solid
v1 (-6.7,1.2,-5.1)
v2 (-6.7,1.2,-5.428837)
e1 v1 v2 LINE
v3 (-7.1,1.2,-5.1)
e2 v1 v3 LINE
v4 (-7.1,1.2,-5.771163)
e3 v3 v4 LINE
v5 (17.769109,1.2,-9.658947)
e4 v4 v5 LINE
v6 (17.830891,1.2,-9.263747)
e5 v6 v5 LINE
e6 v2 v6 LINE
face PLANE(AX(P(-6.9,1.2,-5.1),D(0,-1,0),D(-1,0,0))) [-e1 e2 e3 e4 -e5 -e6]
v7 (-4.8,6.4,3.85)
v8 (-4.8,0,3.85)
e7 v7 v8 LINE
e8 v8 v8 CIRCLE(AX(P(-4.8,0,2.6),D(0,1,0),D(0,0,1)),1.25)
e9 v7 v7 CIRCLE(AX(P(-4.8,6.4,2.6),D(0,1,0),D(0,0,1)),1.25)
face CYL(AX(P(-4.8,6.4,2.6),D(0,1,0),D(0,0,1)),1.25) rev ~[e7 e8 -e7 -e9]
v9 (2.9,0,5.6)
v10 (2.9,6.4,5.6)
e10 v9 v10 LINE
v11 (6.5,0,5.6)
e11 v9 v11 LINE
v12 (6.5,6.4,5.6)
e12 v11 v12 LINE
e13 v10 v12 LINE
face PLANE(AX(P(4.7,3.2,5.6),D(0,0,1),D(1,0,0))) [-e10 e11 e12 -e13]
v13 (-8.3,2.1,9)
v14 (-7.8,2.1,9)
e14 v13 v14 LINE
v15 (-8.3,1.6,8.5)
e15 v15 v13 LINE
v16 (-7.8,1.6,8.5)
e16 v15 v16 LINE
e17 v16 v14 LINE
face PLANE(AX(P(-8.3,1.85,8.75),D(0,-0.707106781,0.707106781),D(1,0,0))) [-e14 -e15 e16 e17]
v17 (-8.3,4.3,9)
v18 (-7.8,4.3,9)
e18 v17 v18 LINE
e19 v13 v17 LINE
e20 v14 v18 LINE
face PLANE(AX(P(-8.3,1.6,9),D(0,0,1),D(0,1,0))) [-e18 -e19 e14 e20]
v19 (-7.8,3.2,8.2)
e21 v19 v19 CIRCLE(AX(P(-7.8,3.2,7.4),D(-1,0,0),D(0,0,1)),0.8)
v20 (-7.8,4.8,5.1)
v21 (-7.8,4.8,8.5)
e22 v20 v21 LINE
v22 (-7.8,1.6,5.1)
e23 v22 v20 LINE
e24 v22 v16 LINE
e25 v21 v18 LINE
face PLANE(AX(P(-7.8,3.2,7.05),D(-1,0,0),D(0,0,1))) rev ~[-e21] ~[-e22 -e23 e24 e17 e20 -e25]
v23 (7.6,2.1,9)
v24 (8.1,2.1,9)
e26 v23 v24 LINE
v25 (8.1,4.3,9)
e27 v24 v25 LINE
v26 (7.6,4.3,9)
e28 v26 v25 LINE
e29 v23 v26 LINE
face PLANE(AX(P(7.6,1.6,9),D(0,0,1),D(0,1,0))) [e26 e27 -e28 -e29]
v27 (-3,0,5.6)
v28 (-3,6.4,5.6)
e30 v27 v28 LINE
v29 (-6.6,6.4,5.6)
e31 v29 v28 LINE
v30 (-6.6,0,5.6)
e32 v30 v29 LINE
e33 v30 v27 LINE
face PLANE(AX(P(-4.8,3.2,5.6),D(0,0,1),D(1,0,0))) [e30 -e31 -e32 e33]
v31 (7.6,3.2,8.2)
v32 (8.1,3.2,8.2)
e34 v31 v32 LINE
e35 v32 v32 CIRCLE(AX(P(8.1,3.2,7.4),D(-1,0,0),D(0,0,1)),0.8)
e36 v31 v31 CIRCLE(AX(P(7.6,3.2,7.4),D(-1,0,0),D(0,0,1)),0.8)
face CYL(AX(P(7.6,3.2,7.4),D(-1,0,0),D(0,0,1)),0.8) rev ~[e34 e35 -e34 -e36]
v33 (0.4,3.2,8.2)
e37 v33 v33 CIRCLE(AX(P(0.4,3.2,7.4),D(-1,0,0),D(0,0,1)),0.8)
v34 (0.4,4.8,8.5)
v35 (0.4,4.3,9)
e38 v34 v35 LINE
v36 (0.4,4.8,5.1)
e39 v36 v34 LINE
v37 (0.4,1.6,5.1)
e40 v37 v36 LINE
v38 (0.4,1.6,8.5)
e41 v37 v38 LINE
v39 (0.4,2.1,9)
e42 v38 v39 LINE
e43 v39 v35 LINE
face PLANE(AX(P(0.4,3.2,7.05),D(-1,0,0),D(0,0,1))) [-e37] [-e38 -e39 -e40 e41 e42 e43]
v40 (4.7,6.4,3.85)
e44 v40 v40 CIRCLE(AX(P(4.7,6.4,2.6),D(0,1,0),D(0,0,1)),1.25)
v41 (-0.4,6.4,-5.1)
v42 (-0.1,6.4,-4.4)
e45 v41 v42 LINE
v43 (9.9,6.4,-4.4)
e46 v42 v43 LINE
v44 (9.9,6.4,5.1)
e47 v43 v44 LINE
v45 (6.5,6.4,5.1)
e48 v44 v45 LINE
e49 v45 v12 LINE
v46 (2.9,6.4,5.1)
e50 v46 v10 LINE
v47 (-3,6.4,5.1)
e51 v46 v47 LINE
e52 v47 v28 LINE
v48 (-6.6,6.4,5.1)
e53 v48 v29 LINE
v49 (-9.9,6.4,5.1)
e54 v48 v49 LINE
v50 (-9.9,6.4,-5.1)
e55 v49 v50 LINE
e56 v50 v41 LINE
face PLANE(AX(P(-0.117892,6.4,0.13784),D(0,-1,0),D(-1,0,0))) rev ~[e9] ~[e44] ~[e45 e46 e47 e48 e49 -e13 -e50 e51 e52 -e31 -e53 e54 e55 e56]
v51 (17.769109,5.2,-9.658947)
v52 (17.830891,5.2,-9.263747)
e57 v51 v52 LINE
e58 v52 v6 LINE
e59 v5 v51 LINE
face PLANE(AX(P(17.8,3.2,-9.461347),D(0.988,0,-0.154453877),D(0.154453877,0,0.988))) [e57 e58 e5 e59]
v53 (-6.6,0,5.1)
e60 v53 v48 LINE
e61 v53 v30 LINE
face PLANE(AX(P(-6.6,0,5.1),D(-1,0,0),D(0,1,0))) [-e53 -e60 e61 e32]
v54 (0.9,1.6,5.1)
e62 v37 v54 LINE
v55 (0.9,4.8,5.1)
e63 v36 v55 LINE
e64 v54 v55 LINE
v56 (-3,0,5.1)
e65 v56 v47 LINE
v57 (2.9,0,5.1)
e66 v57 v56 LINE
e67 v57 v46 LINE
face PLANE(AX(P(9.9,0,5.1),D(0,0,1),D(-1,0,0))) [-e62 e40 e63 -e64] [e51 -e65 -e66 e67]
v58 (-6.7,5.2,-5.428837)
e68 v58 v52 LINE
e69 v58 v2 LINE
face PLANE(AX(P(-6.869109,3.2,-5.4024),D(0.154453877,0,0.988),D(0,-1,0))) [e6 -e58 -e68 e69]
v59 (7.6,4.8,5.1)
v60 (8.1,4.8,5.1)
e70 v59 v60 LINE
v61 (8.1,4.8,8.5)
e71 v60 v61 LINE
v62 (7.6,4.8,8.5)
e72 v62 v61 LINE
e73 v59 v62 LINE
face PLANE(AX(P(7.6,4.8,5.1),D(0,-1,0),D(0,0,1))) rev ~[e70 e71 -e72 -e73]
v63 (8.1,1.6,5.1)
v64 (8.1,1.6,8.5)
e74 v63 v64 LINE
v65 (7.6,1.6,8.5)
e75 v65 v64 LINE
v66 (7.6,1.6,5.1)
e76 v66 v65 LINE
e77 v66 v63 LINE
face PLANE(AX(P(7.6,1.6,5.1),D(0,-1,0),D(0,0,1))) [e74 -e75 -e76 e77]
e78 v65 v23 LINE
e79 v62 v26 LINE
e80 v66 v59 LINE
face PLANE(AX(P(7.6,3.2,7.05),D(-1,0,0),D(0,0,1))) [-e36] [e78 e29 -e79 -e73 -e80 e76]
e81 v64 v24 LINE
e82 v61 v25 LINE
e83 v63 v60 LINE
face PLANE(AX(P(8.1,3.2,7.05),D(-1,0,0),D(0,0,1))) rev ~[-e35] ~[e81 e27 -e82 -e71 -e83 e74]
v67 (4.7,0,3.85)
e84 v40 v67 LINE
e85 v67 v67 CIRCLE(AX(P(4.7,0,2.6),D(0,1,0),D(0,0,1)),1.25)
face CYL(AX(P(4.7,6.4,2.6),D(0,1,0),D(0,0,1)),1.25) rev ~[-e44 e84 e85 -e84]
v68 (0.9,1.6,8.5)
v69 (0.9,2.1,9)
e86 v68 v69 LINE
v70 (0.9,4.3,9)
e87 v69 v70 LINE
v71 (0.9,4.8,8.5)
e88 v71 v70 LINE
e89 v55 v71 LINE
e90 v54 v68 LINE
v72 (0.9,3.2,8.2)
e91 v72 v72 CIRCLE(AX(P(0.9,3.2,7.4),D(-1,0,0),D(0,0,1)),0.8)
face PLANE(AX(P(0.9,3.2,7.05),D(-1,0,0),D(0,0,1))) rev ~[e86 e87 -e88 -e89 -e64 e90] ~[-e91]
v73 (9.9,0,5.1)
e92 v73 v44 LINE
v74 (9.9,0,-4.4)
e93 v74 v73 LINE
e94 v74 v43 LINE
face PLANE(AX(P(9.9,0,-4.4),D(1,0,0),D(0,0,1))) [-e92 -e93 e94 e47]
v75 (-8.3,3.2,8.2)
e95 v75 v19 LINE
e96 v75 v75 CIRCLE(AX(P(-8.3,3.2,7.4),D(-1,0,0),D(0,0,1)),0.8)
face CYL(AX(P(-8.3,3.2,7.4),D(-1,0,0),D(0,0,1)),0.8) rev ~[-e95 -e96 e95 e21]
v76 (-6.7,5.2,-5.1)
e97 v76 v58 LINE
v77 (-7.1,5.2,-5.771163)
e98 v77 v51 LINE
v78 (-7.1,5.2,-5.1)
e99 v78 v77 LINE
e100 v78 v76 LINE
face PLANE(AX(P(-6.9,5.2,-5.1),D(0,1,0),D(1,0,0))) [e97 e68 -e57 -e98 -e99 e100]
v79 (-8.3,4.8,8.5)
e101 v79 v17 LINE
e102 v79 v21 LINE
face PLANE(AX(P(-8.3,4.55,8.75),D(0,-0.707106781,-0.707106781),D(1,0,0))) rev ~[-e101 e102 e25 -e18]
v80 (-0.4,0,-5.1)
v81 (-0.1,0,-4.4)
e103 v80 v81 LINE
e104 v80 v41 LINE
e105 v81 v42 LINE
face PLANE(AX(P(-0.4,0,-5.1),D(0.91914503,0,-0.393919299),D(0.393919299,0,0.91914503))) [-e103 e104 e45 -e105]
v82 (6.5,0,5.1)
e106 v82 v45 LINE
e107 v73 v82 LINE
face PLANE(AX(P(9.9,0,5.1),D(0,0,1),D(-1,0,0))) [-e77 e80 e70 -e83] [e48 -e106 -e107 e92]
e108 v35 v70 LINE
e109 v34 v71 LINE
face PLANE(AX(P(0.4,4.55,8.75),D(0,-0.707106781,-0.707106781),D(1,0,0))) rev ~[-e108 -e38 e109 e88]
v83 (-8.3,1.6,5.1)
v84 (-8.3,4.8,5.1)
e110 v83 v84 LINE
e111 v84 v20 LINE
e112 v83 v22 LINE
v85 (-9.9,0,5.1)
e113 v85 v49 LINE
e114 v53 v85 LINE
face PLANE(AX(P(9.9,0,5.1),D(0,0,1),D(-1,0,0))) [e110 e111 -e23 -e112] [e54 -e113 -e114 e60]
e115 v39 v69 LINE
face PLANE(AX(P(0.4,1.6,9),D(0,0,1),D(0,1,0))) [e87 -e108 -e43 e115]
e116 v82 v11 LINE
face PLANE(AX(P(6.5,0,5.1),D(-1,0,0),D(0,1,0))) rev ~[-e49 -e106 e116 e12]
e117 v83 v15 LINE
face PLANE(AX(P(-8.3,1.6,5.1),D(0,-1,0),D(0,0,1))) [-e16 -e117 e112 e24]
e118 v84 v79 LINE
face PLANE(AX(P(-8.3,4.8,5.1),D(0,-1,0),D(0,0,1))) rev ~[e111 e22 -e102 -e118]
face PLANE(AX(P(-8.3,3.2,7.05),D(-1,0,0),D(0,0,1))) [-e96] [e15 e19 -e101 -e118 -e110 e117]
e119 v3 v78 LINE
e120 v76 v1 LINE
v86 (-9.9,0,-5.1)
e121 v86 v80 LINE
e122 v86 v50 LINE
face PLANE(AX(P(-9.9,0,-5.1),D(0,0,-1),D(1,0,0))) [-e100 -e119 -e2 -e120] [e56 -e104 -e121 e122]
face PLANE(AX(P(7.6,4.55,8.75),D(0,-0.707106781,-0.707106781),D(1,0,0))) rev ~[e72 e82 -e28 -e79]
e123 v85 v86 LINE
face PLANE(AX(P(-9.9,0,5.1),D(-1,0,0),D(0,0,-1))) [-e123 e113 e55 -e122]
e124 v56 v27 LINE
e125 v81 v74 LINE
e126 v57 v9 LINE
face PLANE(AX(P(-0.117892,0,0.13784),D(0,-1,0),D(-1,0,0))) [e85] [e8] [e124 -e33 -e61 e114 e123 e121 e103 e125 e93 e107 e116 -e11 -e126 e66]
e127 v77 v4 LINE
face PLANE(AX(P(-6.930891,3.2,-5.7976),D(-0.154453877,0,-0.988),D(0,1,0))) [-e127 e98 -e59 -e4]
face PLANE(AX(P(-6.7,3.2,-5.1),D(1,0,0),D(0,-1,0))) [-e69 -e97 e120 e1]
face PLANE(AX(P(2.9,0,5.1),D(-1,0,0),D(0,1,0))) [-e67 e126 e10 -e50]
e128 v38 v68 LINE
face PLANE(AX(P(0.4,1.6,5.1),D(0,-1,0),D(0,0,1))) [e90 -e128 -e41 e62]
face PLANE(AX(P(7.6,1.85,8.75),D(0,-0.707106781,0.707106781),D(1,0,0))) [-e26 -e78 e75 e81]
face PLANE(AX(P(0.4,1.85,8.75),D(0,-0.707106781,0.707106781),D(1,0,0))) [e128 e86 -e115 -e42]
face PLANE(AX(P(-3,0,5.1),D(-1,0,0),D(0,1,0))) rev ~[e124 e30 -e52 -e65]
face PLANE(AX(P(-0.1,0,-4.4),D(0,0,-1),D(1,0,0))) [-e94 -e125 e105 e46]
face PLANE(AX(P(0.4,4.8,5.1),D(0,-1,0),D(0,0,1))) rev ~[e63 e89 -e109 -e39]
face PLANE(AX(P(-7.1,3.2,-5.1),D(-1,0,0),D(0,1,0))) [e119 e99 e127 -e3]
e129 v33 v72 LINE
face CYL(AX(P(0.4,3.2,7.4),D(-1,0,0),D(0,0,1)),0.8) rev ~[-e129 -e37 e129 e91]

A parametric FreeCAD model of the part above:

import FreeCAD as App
import Part
import Sketcher

V = App.Vector
Q = App.Units.Quantity


def edges_at(feature, points):
    """Names of the edges that pass closest to the given points."""
    edges = feature.Shape.Edges
    near = lambda p: min(range(len(edges)), key=lambda i: edges[i].distToShape(Part.Vertex(*p))[0])
    return sorted({f"Edge{near(p) + 1}" for p in points})

doc = App.newDocument("Part")
body = doc.addObject("PartDesign::Body", "Body")

# Sketch on XZ plane
sketch1 = doc.addObject("Sketcher::SketchObject", "Sketch")
body.addObject(sketch1)
sketch1.AttachmentSupport = (doc.XZ_Plane, [""])
sketch1.MapMode = "FlatFace"
sketch1.addGeometry([
    Part.LineSegment(V(-0.1, -4.4, 0), V(-0.4, -5.1, 0)),  # 0
    Part.LineSegment(V(-0.4, -5.1, 0), V(-9.9, -5.1, 0)),  # 1
    Part.LineSegment(V(-9.9, -5.1, 0), V(-9.9, 5.1, 0)),  # 2
    Part.LineSegment(V(-9.9, 5.1, 0), V(9.9, 5.1, 0)),  # 3
    Part.LineSegment(V(9.9, 5.1, 0), V(9.9, -4.4, 0)),  # 4
    Part.LineSegment(V(9.9, -4.4, 0), V(-0.1, -4.4, 0)),  # 5
], False)
sketch1.addConstraint([
    Sketcher.Constraint("Coincident", 0, 2, 1, 1),
    Sketcher.Constraint("Coincident", 1, 2, 2, 1),
    Sketcher.Constraint("Coincident", 2, 2, 3, 1),
    Sketcher.Constraint("Coincident", 3, 2, 4, 1),
    Sketcher.Constraint("Coincident", 4, 2, 5, 1),
    Sketcher.Constraint("Coincident", 5, 2, 0, 1),
    Sketcher.Constraint("Horizontal", 1),
    Sketcher.Constraint("Vertical", 2),
    Sketcher.Constraint("Horizontal", 3),
    Sketcher.Constraint("Vertical", 4),
    Sketcher.Constraint("Horizontal", 5),
    Sketcher.Constraint("Symmetric", 1, 2, 3, 2, -1, 1),
    Sketcher.Constraint("Equal", 1, 4),
    Sketcher.Constraint("DistanceX", 5, 2, 5, 1, Q("10 mm")),
    Sketcher.Constraint("DistanceX", 1, 2, 1, 1, Q("9.5 mm")),
    Sketcher.Constraint("DistanceX", 3, 1, 3, 2, Q("19.8 mm")),
    Sketcher.Constraint("DistanceY", 2, 1, 2, 2, Q("10.2 mm")),
])
pad1 = doc.addObject("PartDesign::Pad", "Pad")
body.addObject(pad1)
pad1.Profile = sketch1
pad1.Length = 6.4
pad1.Reversed = True

# Sketch on XZ plane
sketch2 = doc.addObject("Sketcher::SketchObject", "Sketch001")
body.addObject(sketch2)
sketch2.AttachmentSupport = (doc.XZ_Plane, [""])
sketch2.MapMode = "FlatFace"
sketch2.AttachmentOffset = App.Placement(V(0, 0, -6.4), App.Rotation())
sketch2.addGeometry([
    Part.Circle(V(-4.8, 2.6, 0), V(0, 0, 1), 1.2),
    Part.Circle(V(4.7, 2.6, 0), V(0, 0, 1), 1.2),
], False)
sketch2.addConstraint([
    Sketcher.Constraint("Equal", 0, 1),
    Sketcher.Constraint("Horizontal", 0, 3, 1, 3),
    Sketcher.Constraint("Diameter", 0, Q("2.5 mm")),
    Sketcher.Constraint("DistanceX", 0, 3, -1, 1, Q("4.8 mm")),
    Sketcher.Constraint("DistanceY", -1, 1, 0, 3, Q("2.6 mm")),
    Sketcher.Constraint("DistanceX", -1, 1, 1, 3, Q("4.7 mm")),
])
pocket1 = doc.addObject("PartDesign::Pocket", "Pocket")
body.addObject(pocket1)
pocket1.Profile = sketch2
pocket1.Type = "ThroughAll"
pocket1.Reversed = True

# Sketch on YZ plane
sketch3 = doc.addObject("Sketcher::SketchObject", "Sketch002")
body.addObject(sketch3)
sketch3.AttachmentSupport = (doc.YZ_Plane, [""])
sketch3.MapMode = "FlatFace"
sketch3.AttachmentOffset = App.Placement(V(0, 0, -8.3), App.Rotation())
sketch3.addGeometry([
    Part.LineSegment(V(4.8, 5.1, 0), V(1.6, 5.1, 0)),  # 0
    Part.LineSegment(V(1.6, 5.1, 0), V(1.6, 9, 0)),  # 1
    Part.LineSegment(V(1.6, 9, 0), V(4.8, 9, 0)),  # 2
    Part.LineSegment(V(4.8, 9, 0), V(4.8, 5.1, 0)),  # 3
    Part.Circle(V(3.2, 7.4, 0), V(0, 0, 1), 0.8),  # 4
], False)
sketch3.addConstraint([
    Sketcher.Constraint("Coincident", 0, 2, 1, 1),
    Sketcher.Constraint("Coincident", 1, 2, 2, 1),
    Sketcher.Constraint("Coincident", 2, 2, 3, 1),
    Sketcher.Constraint("Coincident", 3, 2, 0, 1),
    Sketcher.Constraint("Horizontal", 0),
    Sketcher.Constraint("Vertical", 1),
    Sketcher.Constraint("Horizontal", 2),
    Sketcher.Constraint("Vertical", 3),
    Sketcher.Constraint("Diameter", 4, Q("1.6 mm")),
    Sketcher.Constraint("DistanceX", 0, 2, 0, 1, Q("3.2 mm")),
    Sketcher.Constraint("DistanceY", 1, 1, 1, 2, Q("3.9 mm")),
    Sketcher.Constraint("DistanceY", -1, 1, 1, 2, Q("9 mm")),
    Sketcher.Constraint("DistanceX", -1, 1, 4, 3, Q("3.2 mm")),
    Sketcher.Constraint("DistanceY", -1, 1, 4, 3, Q("7.4 mm")),
    Sketcher.Constraint("DistanceX", -1, 1, 0, 2, Q("1.6 mm")),
])
pad2 = doc.addObject("PartDesign::Pad", "Pad001")
body.addObject(pad2)
pad2.Profile = sketch3
pad2.Length = 0.5
doc.recompute()

chamfer = doc.addObject("PartDesign::Chamfer", "Chamfer")
body.addObject(chamfer)
chamfer.Base = (pad2, edges_at(pad2, [(-8.05, 4.8, 9), (-8.05, 1.6, 9)]))
chamfer.Size = 0.5
doc.recompute()

linearpattern = doc.addObject("PartDesign::LinearPattern", "LinearPattern")
body.addObject(linearpattern)
linearpattern.Originals = [pad2]
linearpattern.Direction = (doc.X_Axis, [""])
linearpattern.Mode = "offset"
linearpattern.Offset = 8.7
linearpattern.Occurrences = 2
body.Tip = linearpattern
doc.recompute()

chamfer2 = doc.addObject("PartDesign::Chamfer", "Chamfer001")
body.addObject(chamfer2)
chamfer2.Base = (linearpattern, edges_at(linearpattern, [(0.65, 4.8, 9), (0.65, 1.6, 9)]))
chamfer2.Size = 0.5
doc.recompute()

linearpattern2 = doc.addObject("PartDesign::LinearPattern", "LinearPattern001")
body.addObject(linearpattern2)
linearpattern2.Originals = [pad2]
linearpattern2.Direction = (doc.X_Axis, [""])
linearpattern2.Mode = "offset"
linearpattern2.Offset = 15.9
linearpattern2.Occurrences = 2
body.Tip = linearpattern2
doc.recompute()

chamfer3 = doc.addObject("PartDesign::Chamfer", "Chamfer002")
body.addObject(chamfer3)
chamfer3.Base = (linearpattern2, edges_at(linearpattern2, [(7.85, 4.8, 9), (7.85, 1.6, 9)]))
chamfer3.Size = 0.5

# Sketch on XY plane
sketch4 = doc.addObject("Sketcher::SketchObject", "Sketch003")
body.addObject(sketch4)
sketch4.AttachmentSupport = (doc.XY_Plane, [""])
sketch4.MapMode = "FlatFace"
sketch4.AttachmentOffset = App.Placement(V(0, 0, -5.1), App.Rotation())
sketch4.addGeometry([
    Part.LineSegment(V(-6.7, 5.2, 0), V(-6.7, 1.2, 0)),
    Part.LineSegment(V(-6.7, 1.2, 0), V(-7.1, 1.2, 0)),
    Part.LineSegment(V(-7.1, 1.2, 0), V(-7.1, 5.2, 0)),
    Part.LineSegment(V(-7.1, 5.2, 0), V(-6.7, 5.2, 0)),
], False)
sketch4.addConstraint([
    Sketcher.Constraint("Coincident", 0, 2, 1, 1),
    Sketcher.Constraint("Coincident", 1, 2, 2, 1),
    Sketcher.Constraint("Coincident", 2, 2, 3, 1),
    Sketcher.Constraint("Coincident", 3, 2, 0, 1),
    Sketcher.Constraint("Vertical", 0),
    Sketcher.Constraint("Horizontal", 1),
    Sketcher.Constraint("Vertical", 2),
    Sketcher.Constraint("Horizontal", 3),
    Sketcher.Constraint("DistanceY", 0, 2, 0, 1, Q("4 mm")),
    Sketcher.Constraint("DistanceX", 1, 2, 1, 1, Q("0.4 mm")),
    Sketcher.Constraint("DistanceX", 0, 2, -1, 1, Q("6.7 mm")),
    Sketcher.Constraint("DistanceY", -1, 1, 0, 2, Q("1.2 mm")),
])

# Sketch on XZ plane
sketch5 = doc.addObject("Sketcher::SketchObject", "Sketch004")
body.addObject(sketch5)
sketch5.AttachmentSupport = (doc.XZ_Plane, [""])
sketch5.MapMode = "FlatFace"
sketch5.AttachmentOffset = App.Placement(V(0, 0, -3.2), App.Rotation())
sketch5.addGeometry([
    Part.LineSegment(V(-6.9, -5.1, 0), V(-6.9, -5.6, 0)),
    Part.LineSegment(V(-6.9, -5.6, 0), V(17.8, -9.5, 0)),
], False)
sketch5.addConstraint([
    Sketcher.Constraint("Coincident", 0, 2, 1, 1),
    Sketcher.Constraint("Vertical", 0),
    Sketcher.Constraint("Distance", 1, Q("25 mm")),
    Sketcher.Constraint("DistanceY", 0, 2, 0, 1, Q("0.5 mm")),
    Sketcher.Constraint("DistanceX", 0, 1, -1, 1, Q("6.9 mm")),
    Sketcher.Constraint("DistanceY", 0, 1, -1, 1, Q("5.1 mm")),
    Sketcher.Constraint("DistanceX", -1, 1, 1, 2, Q("17.8 mm")),
])
doc.recompute()

additivepipe = doc.addObject("PartDesign::AdditivePipe", "AdditivePipe")
body.addObject(additivepipe)
additivepipe.Profile = sketch4
additivepipe.Spine = (sketch5, ["Edge1", "Edge2"])
additivepipe.Transition = "Right corner"

# Sketch on XY plane
sketch6 = doc.addObject("Sketcher::SketchObject", "Sketch005")
body.addObject(sketch6)
sketch6.AttachmentSupport = (doc.XY_Plane, [""])
sketch6.MapMode = "FlatFace"
sketch6.AttachmentOffset = App.Placement(V(0, 0, 5.1), App.Rotation())
sketch6.addGeometry([
    Part.LineSegment(V(-6.6, 6.4, 0), V(-6.6, 0, 0)),  # 0
    Part.LineSegment(V(-6.6, 0, 0), V(-3, 0, 0)),  # 1
    Part.LineSegment(V(-3, 0, 0), V(-3, 6.4, 0)),  # 2
    Part.LineSegment(V(-3, 6.4, 0), V(-6.6, 6.4, 0)),  # 3
    Part.LineSegment(V(2.9, 6.4, 0), V(2.9, 0, 0)),  # 4
    Part.LineSegment(V(2.9, 0, 0), V(6.5, 0, 0)),  # 5
    Part.LineSegment(V(6.5, 0, 0), V(6.5, 6.4, 0)),  # 6
    Part.LineSegment(V(6.5, 6.4, 0), V(2.9, 6.4, 0)),  # 7
], False)
sketch6.addConstraint([
    Sketcher.Constraint("Coincident", 0, 2, 1, 1),
    Sketcher.Constraint("Coincident", 1, 2, 2, 1),
    Sketcher.Constraint("Coincident", 2, 2, 3, 1),
    Sketcher.Constraint("Coincident", 3, 2, 0, 1),
    Sketcher.Constraint("Coincident", 4, 2, 5, 1),
    Sketcher.Constraint("Coincident", 5, 2, 6, 1),
    Sketcher.Constraint("Coincident", 6, 2, 7, 1),
    Sketcher.Constraint("Coincident", 7, 2, 4, 1),
    Sketcher.Constraint("Vertical", 0),
    Sketcher.Constraint("Horizontal", 1),
    Sketcher.Constraint("Vertical", 2),
    Sketcher.Constraint("Horizontal", 3),
    Sketcher.Constraint("Vertical", 4),
    Sketcher.Constraint("Horizontal", 5),
    Sketcher.Constraint("Vertical", 6),
    Sketcher.Constraint("Horizontal", 7),
    Sketcher.Constraint("PointOnObject", 0, 2, -1),
    Sketcher.Constraint("PointOnObject", 4, 2, -1),
    Sketcher.Constraint("Horizontal", 3, 2, 6, 2),
    Sketcher.Constraint("Equal", 3, 5),
    Sketcher.Constraint("DistanceX", 1, 1, 1, 2, Q("3.6 mm")),
    Sketcher.Constraint("DistanceY", 0, 2, 0, 1, Q("6.4 mm")),
    Sketcher.Constraint("DistanceX", 1, 2, -1, 1, Q("3 mm")),
    Sketcher.Constraint("DistanceX", -1, 1, 4, 2, Q("2.9 mm")),
])
pad3 = doc.addObject("PartDesign::Pad", "Pad002")
body.addObject(pad3)
pad3.Profile = sketch6
pad3.Length = 0.5

doc.recompute()
